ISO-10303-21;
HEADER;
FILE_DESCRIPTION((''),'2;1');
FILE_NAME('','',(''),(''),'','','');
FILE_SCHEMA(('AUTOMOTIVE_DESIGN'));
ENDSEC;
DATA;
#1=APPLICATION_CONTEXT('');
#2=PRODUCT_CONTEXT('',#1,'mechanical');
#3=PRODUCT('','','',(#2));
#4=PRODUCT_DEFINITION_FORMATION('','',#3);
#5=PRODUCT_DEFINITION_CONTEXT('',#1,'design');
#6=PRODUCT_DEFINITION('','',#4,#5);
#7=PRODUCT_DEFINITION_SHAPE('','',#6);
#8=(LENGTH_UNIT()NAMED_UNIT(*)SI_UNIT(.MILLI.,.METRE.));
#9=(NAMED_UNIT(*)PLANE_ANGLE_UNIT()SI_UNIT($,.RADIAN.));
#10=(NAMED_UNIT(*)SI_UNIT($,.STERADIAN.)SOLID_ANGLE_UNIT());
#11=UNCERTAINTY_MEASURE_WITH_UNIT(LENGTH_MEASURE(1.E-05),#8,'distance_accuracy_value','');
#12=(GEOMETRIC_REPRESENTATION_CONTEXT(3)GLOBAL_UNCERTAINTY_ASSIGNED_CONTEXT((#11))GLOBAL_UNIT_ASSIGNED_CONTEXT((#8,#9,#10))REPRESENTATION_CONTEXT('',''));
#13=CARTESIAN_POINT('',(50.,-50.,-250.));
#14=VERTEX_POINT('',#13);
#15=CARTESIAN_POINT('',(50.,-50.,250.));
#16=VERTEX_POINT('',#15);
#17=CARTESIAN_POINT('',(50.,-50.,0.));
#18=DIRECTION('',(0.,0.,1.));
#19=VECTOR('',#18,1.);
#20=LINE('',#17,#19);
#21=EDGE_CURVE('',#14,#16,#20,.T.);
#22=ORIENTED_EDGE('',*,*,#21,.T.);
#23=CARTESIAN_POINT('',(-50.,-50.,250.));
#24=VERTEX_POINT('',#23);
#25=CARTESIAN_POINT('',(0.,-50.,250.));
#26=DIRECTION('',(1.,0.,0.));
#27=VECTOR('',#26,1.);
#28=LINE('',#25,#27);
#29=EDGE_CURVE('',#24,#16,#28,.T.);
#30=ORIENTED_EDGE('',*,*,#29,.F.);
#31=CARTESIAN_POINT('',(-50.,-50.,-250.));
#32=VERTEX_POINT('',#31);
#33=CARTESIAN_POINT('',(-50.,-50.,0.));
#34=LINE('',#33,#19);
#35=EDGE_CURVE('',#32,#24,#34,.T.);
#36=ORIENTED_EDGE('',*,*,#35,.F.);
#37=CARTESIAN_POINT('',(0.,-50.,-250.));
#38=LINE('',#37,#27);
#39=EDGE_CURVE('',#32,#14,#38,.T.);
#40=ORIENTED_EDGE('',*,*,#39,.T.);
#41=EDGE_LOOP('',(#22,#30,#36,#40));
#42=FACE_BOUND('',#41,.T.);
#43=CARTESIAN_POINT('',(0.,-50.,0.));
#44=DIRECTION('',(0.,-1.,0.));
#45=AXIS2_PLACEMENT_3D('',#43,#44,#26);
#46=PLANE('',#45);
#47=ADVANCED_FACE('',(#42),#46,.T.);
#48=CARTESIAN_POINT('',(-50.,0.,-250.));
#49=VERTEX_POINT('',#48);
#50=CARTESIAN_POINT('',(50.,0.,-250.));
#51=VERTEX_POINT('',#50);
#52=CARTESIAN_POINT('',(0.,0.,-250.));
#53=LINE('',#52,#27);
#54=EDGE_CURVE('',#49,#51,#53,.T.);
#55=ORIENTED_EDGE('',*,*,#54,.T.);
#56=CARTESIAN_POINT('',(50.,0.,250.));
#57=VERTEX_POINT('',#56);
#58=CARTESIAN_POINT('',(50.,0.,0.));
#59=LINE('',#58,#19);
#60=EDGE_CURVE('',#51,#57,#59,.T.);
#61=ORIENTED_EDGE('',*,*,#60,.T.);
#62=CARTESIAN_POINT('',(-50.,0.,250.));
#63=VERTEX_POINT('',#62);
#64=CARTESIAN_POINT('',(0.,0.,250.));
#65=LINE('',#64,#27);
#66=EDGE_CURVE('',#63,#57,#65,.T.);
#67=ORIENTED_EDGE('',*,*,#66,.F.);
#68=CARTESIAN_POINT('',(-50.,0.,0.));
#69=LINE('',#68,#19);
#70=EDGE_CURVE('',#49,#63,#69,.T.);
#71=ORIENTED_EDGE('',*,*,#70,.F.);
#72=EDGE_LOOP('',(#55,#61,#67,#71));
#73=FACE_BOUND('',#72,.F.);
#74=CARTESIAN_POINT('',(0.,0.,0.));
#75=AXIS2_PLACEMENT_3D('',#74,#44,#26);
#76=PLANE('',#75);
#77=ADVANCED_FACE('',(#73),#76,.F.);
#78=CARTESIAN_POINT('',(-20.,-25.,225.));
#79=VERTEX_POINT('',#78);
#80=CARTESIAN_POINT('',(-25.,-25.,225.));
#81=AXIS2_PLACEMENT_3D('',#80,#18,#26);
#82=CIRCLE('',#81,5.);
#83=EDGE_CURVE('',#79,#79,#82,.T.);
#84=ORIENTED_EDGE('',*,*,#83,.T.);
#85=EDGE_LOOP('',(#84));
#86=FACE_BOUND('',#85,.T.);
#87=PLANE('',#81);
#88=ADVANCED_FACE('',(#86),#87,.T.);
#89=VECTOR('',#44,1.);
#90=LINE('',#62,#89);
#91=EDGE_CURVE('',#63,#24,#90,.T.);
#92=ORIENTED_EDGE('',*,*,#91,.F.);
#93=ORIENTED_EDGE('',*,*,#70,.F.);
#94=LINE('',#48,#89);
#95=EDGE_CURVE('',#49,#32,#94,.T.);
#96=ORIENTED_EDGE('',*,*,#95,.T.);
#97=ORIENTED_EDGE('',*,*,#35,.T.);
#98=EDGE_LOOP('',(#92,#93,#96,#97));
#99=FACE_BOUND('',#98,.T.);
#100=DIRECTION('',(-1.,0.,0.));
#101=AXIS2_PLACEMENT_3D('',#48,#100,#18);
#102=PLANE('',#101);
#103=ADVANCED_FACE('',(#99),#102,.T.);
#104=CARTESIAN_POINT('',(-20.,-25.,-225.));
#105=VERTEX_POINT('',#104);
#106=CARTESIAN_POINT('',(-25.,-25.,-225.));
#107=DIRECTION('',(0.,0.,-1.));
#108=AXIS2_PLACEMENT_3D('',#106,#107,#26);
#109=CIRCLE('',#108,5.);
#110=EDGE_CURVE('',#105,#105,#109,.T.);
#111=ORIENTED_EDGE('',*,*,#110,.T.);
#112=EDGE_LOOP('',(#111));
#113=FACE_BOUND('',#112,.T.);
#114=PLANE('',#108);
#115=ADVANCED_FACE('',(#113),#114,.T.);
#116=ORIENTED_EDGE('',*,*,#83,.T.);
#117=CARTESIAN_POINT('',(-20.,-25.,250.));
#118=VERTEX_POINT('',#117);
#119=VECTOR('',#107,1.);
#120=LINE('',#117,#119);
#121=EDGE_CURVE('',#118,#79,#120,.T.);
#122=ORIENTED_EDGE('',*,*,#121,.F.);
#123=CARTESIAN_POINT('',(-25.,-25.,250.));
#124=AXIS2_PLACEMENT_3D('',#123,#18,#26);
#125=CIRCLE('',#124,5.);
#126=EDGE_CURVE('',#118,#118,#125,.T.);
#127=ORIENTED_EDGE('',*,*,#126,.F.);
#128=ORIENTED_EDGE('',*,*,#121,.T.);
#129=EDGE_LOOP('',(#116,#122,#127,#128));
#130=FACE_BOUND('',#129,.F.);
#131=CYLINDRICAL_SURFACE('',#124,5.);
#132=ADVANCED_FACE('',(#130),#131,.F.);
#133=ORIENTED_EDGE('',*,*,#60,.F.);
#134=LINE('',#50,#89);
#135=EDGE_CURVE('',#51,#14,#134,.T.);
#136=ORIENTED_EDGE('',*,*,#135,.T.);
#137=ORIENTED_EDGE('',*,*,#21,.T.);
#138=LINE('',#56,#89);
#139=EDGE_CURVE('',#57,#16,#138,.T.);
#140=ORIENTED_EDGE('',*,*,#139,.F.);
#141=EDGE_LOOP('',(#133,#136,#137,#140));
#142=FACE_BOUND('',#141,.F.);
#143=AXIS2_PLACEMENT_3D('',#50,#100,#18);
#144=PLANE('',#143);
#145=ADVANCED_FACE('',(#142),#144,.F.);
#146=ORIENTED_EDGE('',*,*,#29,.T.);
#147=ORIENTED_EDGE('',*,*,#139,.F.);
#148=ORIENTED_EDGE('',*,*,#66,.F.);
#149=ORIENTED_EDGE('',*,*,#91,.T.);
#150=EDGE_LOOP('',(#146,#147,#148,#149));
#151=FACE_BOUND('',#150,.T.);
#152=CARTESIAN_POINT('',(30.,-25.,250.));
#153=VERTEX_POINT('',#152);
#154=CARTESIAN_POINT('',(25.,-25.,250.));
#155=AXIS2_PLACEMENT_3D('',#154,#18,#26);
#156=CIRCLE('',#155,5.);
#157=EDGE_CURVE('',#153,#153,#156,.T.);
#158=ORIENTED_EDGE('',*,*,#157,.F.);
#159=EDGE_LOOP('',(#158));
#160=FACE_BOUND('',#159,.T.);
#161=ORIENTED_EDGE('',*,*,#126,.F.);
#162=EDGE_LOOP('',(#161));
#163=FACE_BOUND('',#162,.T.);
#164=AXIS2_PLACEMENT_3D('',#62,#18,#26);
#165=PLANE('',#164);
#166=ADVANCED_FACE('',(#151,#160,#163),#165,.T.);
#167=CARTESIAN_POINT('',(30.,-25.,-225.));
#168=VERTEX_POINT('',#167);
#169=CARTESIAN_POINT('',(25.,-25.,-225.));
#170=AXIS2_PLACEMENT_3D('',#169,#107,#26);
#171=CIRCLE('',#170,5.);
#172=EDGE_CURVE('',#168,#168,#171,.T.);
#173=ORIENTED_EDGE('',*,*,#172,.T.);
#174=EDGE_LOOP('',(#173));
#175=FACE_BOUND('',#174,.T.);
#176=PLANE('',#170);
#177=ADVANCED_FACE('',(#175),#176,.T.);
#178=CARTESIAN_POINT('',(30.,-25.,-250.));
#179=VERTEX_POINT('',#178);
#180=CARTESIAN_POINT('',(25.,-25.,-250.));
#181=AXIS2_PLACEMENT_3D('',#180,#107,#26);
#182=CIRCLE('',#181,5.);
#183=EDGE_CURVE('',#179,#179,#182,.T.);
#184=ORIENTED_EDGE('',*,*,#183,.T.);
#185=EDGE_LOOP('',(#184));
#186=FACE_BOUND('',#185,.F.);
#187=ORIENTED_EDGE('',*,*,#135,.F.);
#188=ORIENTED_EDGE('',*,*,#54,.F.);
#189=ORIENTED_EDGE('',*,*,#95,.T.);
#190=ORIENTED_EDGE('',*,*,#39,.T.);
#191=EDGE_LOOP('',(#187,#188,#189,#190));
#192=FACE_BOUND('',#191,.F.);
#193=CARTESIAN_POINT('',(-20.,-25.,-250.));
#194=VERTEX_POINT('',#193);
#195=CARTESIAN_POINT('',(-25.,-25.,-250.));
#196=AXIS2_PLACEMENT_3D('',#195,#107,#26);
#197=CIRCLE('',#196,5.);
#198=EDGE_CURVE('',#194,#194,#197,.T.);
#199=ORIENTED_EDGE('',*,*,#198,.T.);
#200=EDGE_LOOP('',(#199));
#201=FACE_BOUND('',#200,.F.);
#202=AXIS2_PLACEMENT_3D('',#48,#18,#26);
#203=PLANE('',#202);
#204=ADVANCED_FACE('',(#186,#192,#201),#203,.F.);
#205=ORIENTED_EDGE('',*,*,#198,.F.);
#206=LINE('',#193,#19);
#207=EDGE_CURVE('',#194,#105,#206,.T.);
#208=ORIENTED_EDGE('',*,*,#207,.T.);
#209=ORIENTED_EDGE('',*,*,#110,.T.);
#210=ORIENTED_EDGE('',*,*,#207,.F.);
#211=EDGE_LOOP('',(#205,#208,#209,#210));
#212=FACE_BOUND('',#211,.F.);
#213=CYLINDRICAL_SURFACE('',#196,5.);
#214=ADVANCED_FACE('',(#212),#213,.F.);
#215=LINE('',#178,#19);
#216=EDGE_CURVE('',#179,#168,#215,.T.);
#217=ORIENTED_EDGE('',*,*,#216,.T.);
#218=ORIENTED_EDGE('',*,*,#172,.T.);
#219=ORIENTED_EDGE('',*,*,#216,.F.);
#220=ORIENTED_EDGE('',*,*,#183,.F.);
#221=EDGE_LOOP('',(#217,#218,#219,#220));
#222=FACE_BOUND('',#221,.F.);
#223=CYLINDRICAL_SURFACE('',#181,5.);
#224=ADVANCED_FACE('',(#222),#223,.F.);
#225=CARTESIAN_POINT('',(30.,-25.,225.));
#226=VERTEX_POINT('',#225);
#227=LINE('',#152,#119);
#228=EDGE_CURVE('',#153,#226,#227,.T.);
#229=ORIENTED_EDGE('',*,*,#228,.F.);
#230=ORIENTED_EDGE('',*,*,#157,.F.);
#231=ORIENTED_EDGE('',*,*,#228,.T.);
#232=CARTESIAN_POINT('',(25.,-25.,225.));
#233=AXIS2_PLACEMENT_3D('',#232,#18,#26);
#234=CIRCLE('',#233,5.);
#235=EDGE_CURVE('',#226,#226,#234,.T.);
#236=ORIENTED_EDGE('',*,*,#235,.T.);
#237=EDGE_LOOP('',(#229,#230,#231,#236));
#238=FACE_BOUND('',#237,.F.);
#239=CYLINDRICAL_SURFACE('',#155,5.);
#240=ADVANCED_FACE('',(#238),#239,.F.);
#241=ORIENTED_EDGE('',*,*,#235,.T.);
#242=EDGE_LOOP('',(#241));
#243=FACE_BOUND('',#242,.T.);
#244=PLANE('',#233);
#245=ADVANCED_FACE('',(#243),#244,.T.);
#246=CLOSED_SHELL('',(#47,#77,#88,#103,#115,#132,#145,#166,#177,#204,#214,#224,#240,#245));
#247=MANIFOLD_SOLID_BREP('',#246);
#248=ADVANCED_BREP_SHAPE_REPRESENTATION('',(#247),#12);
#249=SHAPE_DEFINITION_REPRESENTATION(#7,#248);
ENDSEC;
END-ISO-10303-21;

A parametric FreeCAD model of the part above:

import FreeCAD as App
import Part
import Sketcher
Q = App.Units.Quantity


def add_polygon(sketch, points):
    """Adds a closed chain of lines whose ends are joined by coincident constraints."""
    first, n = sketch.GeometryCount, len(points)
    for a, b in zip(points, points[1:] + points[:1]):
        sketch.addGeometry(Part.LineSegment(App.Vector(*a, 0), App.Vector(*b, 0)), False)
    for i in range(n):
        sketch.addConstraint(Sketcher.Constraint("Coincident", first + i, 2, first + (i + 1) % n, 1))

doc = App.newDocument("Part")
params = doc.addObject("Spreadsheet::Sheet", "Params")
for row, (alias, value) in enumerate([
    ("sketch1_width", "100 mm"),
    ("sketch1_height", "500 mm"),
    ("pad1_length", "50 mm"),
    ("sketch2_diameter", "10 mm"),
    ("pocket1_length", "25 mm"),
    ("sketch3_diameter", "10 mm"),
    ("pocket2_length", "25 mm"),
], start=1):
    params.set(f"A{row}", alias)
    params.set(f"B{row}", "=" + value)
    params.setAlias(f"B{row}", alias)

body = doc.addObject("PartDesign::Body", "Body")

# Sketch on XZ plane
sketch1 = doc.addObject("Sketcher::SketchObject", "Sketch")
body.addObject(sketch1)
sketch1.AttachmentSupport = (doc.XZ_Plane, [""])
sketch1.MapMode = "FlatFace"
add_polygon(sketch1, [(-50, 250), (-50, -250), (50, -250), (50, 250)])  # lines 0-3
sketch1.addConstraint([
    Sketcher.Constraint("Vertical", 0),
    Sketcher.Constraint("Horizontal", 1),
    Sketcher.Constraint("Vertical", 2),
    Sketcher.Constraint("Horizontal", 3),
    Sketcher.Constraint("Symmetric", 0, 2, 2, 2, -1, 1),
    Sketcher.Constraint("DistanceX", 1, 1, 1, 2, Q("100 mm")),
    Sketcher.Constraint("DistanceY", 0, 2, 0, 1, Q("500 mm")),
])
sketch1.setExpression("Constraints[9]", "Params.sketch1_width")
sketch1.setExpression("Constraints[10]", "Params.sketch1_height")
pad1 = doc.addObject("PartDesign::Pad", "Pad")
body.addObject(pad1)
pad1.Profile = sketch1
pad1.setExpression("Length", "Params.pad1_length")

# Sketch on XY plane
sketch2 = doc.addObject("Sketcher::SketchObject", "Sketch001")
body.addObject(sketch2)
sketch2.AttachmentSupport = (doc.XY_Plane, [""])
sketch2.MapMode = "FlatFace"
sketch2.AttachmentOffset = App.Placement(App.Vector(0, 0, 250), App.Rotation())
sketch2.addGeometry([
    Part.Circle(App.Vector(-25, -25, 0), App.Vector(0, 0, 1), 5),
    Part.Circle(App.Vector(25, -25, 0), App.Vector(0, 0, 1), 5),
], False)
sketch2.addConstraint([
    Sketcher.Constraint("Equal", 0, 1),
    Sketcher.Constraint("Symmetric", 0, 3, 1, 3, -2),
    Sketcher.Constraint("Diameter", 0, Q("10 mm")),
    Sketcher.Constraint("DistanceX", 0, 3, -1, 1, Q("25 mm")),
    Sketcher.Constraint("DistanceY", 0, 3, -1, 1, Q("25 mm")),
])
sketch2.setExpression("Constraints[2]", "Params.sketch2_diameter")
pocket1 = doc.addObject("PartDesign::Pocket", "Pocket")
body.addObject(pocket1)
pocket1.Profile = sketch2
pocket1.setExpression("Length", "Params.pocket1_length")

# Sketch on XY plane
sketch3 = doc.addObject("Sketcher::SketchObject", "Sketch002")
body.addObject(sketch3)
sketch3.AttachmentSupport = (doc.XY_Plane, [""])
sketch3.MapMode = "FlatFace"
sketch3.AttachmentOffset = App.Placement(App.Vector(0, 0, -250), App.Rotation())
sketch3.addGeometry([
    Part.Circle(App.Vector(25, -25, 0), App.Vector(0, 0, 1), 5),
    Part.Circle(App.Vector(-25, -25, 0), App.Vector(0, 0, 1), 5),
], False)
sketch3.addConstraint([
    Sketcher.Constraint("Equal", 0, 1),
    Sketcher.Constraint("Symmetric", 0, 3, 1, 3, -2),
    Sketcher.Constraint("Diameter", 0, Q("10 mm")),
    Sketcher.Constraint("DistanceX", -1, 1, 0, 3, Q("25 mm")),
    Sketcher.Constraint("DistanceY", 0, 3, -1, 1, Q("25 mm")),
])
sketch3.setExpression("Constraints[2]", "Params.sketch3_diameter")
pocket2 = doc.addObject("PartDesign::Pocket", "Pocket001")
body.addObject(pocket2)
pocket2.Profile = sketch3
pocket2.setExpression("Length", "Params.pocket2_length")
pocket2.Reversed = True

doc.recompute()
